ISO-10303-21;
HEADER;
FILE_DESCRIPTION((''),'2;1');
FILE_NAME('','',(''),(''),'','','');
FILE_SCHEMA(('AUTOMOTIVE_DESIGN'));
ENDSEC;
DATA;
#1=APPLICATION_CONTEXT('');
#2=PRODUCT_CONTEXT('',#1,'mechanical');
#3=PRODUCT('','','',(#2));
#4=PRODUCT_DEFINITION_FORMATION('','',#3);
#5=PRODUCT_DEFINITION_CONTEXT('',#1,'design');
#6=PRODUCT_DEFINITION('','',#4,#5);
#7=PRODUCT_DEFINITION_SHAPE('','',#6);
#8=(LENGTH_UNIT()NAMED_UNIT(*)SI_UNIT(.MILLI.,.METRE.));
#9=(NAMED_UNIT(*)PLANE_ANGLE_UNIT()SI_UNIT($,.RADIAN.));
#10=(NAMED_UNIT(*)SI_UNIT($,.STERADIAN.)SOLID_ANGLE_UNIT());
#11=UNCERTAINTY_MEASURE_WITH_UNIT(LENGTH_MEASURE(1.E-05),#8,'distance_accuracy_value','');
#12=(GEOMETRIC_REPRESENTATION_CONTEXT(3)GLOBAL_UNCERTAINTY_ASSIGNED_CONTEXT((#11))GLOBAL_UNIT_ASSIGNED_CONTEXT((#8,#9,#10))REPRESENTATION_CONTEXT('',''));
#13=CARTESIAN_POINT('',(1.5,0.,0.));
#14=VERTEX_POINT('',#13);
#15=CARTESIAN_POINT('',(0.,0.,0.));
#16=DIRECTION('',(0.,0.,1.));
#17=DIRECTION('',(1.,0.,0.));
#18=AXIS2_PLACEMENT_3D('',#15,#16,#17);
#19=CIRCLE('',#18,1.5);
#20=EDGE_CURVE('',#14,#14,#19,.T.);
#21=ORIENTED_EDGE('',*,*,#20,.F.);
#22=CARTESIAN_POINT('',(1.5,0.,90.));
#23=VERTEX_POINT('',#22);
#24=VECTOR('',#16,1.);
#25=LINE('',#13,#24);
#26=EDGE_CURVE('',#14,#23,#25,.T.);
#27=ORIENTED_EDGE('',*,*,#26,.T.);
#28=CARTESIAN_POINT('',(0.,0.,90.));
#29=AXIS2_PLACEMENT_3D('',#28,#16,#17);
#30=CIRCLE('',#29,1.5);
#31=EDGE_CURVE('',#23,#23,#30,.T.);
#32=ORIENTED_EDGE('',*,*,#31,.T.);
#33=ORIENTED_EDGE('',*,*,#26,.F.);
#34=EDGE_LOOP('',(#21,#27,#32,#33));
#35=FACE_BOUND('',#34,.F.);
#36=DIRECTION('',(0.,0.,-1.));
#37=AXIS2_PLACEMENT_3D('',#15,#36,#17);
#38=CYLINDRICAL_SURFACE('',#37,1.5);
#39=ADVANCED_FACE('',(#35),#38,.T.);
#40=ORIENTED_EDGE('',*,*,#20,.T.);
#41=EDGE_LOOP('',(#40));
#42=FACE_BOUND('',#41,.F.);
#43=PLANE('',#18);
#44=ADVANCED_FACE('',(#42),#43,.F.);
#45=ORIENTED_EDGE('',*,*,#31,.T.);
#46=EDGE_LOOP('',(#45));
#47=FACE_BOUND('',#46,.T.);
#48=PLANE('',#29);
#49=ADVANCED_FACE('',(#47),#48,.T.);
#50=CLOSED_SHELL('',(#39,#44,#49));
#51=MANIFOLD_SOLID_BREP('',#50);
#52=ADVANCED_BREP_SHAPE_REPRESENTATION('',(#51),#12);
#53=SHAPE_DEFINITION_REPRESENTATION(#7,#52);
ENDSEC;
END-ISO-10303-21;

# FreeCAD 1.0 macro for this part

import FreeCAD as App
import Part
import Sketcher
Q = App.Units.Quantity

doc = App.newDocument("Part")
body = doc.addObject("PartDesign::Body", "Body")

sketch1 = body.newObject("Sketcher::SketchObject", "Sketch")
sketch1.AttachmentSupport = (doc.getObject("XY_Plane"), [""])
sketch1.MapMode = "FlatFace"
sketch1.addGeometry(Part.Circle(App.Vector(0, 0, 0), App.Vector(0, 0, 1), 1.5), False)
sketch1.addConstraint(Sketcher.Constraint("Coincident", 0, 3, -1, 1))
sketch1.addConstraint(Sketcher.Constraint("Diameter", 0, Q("3 mm")))
pad1 = body.newObject("PartDesign::Pad", "Pad")
pad1.Profile = sketch1
pad1.Length = 90

doc.recompute()
